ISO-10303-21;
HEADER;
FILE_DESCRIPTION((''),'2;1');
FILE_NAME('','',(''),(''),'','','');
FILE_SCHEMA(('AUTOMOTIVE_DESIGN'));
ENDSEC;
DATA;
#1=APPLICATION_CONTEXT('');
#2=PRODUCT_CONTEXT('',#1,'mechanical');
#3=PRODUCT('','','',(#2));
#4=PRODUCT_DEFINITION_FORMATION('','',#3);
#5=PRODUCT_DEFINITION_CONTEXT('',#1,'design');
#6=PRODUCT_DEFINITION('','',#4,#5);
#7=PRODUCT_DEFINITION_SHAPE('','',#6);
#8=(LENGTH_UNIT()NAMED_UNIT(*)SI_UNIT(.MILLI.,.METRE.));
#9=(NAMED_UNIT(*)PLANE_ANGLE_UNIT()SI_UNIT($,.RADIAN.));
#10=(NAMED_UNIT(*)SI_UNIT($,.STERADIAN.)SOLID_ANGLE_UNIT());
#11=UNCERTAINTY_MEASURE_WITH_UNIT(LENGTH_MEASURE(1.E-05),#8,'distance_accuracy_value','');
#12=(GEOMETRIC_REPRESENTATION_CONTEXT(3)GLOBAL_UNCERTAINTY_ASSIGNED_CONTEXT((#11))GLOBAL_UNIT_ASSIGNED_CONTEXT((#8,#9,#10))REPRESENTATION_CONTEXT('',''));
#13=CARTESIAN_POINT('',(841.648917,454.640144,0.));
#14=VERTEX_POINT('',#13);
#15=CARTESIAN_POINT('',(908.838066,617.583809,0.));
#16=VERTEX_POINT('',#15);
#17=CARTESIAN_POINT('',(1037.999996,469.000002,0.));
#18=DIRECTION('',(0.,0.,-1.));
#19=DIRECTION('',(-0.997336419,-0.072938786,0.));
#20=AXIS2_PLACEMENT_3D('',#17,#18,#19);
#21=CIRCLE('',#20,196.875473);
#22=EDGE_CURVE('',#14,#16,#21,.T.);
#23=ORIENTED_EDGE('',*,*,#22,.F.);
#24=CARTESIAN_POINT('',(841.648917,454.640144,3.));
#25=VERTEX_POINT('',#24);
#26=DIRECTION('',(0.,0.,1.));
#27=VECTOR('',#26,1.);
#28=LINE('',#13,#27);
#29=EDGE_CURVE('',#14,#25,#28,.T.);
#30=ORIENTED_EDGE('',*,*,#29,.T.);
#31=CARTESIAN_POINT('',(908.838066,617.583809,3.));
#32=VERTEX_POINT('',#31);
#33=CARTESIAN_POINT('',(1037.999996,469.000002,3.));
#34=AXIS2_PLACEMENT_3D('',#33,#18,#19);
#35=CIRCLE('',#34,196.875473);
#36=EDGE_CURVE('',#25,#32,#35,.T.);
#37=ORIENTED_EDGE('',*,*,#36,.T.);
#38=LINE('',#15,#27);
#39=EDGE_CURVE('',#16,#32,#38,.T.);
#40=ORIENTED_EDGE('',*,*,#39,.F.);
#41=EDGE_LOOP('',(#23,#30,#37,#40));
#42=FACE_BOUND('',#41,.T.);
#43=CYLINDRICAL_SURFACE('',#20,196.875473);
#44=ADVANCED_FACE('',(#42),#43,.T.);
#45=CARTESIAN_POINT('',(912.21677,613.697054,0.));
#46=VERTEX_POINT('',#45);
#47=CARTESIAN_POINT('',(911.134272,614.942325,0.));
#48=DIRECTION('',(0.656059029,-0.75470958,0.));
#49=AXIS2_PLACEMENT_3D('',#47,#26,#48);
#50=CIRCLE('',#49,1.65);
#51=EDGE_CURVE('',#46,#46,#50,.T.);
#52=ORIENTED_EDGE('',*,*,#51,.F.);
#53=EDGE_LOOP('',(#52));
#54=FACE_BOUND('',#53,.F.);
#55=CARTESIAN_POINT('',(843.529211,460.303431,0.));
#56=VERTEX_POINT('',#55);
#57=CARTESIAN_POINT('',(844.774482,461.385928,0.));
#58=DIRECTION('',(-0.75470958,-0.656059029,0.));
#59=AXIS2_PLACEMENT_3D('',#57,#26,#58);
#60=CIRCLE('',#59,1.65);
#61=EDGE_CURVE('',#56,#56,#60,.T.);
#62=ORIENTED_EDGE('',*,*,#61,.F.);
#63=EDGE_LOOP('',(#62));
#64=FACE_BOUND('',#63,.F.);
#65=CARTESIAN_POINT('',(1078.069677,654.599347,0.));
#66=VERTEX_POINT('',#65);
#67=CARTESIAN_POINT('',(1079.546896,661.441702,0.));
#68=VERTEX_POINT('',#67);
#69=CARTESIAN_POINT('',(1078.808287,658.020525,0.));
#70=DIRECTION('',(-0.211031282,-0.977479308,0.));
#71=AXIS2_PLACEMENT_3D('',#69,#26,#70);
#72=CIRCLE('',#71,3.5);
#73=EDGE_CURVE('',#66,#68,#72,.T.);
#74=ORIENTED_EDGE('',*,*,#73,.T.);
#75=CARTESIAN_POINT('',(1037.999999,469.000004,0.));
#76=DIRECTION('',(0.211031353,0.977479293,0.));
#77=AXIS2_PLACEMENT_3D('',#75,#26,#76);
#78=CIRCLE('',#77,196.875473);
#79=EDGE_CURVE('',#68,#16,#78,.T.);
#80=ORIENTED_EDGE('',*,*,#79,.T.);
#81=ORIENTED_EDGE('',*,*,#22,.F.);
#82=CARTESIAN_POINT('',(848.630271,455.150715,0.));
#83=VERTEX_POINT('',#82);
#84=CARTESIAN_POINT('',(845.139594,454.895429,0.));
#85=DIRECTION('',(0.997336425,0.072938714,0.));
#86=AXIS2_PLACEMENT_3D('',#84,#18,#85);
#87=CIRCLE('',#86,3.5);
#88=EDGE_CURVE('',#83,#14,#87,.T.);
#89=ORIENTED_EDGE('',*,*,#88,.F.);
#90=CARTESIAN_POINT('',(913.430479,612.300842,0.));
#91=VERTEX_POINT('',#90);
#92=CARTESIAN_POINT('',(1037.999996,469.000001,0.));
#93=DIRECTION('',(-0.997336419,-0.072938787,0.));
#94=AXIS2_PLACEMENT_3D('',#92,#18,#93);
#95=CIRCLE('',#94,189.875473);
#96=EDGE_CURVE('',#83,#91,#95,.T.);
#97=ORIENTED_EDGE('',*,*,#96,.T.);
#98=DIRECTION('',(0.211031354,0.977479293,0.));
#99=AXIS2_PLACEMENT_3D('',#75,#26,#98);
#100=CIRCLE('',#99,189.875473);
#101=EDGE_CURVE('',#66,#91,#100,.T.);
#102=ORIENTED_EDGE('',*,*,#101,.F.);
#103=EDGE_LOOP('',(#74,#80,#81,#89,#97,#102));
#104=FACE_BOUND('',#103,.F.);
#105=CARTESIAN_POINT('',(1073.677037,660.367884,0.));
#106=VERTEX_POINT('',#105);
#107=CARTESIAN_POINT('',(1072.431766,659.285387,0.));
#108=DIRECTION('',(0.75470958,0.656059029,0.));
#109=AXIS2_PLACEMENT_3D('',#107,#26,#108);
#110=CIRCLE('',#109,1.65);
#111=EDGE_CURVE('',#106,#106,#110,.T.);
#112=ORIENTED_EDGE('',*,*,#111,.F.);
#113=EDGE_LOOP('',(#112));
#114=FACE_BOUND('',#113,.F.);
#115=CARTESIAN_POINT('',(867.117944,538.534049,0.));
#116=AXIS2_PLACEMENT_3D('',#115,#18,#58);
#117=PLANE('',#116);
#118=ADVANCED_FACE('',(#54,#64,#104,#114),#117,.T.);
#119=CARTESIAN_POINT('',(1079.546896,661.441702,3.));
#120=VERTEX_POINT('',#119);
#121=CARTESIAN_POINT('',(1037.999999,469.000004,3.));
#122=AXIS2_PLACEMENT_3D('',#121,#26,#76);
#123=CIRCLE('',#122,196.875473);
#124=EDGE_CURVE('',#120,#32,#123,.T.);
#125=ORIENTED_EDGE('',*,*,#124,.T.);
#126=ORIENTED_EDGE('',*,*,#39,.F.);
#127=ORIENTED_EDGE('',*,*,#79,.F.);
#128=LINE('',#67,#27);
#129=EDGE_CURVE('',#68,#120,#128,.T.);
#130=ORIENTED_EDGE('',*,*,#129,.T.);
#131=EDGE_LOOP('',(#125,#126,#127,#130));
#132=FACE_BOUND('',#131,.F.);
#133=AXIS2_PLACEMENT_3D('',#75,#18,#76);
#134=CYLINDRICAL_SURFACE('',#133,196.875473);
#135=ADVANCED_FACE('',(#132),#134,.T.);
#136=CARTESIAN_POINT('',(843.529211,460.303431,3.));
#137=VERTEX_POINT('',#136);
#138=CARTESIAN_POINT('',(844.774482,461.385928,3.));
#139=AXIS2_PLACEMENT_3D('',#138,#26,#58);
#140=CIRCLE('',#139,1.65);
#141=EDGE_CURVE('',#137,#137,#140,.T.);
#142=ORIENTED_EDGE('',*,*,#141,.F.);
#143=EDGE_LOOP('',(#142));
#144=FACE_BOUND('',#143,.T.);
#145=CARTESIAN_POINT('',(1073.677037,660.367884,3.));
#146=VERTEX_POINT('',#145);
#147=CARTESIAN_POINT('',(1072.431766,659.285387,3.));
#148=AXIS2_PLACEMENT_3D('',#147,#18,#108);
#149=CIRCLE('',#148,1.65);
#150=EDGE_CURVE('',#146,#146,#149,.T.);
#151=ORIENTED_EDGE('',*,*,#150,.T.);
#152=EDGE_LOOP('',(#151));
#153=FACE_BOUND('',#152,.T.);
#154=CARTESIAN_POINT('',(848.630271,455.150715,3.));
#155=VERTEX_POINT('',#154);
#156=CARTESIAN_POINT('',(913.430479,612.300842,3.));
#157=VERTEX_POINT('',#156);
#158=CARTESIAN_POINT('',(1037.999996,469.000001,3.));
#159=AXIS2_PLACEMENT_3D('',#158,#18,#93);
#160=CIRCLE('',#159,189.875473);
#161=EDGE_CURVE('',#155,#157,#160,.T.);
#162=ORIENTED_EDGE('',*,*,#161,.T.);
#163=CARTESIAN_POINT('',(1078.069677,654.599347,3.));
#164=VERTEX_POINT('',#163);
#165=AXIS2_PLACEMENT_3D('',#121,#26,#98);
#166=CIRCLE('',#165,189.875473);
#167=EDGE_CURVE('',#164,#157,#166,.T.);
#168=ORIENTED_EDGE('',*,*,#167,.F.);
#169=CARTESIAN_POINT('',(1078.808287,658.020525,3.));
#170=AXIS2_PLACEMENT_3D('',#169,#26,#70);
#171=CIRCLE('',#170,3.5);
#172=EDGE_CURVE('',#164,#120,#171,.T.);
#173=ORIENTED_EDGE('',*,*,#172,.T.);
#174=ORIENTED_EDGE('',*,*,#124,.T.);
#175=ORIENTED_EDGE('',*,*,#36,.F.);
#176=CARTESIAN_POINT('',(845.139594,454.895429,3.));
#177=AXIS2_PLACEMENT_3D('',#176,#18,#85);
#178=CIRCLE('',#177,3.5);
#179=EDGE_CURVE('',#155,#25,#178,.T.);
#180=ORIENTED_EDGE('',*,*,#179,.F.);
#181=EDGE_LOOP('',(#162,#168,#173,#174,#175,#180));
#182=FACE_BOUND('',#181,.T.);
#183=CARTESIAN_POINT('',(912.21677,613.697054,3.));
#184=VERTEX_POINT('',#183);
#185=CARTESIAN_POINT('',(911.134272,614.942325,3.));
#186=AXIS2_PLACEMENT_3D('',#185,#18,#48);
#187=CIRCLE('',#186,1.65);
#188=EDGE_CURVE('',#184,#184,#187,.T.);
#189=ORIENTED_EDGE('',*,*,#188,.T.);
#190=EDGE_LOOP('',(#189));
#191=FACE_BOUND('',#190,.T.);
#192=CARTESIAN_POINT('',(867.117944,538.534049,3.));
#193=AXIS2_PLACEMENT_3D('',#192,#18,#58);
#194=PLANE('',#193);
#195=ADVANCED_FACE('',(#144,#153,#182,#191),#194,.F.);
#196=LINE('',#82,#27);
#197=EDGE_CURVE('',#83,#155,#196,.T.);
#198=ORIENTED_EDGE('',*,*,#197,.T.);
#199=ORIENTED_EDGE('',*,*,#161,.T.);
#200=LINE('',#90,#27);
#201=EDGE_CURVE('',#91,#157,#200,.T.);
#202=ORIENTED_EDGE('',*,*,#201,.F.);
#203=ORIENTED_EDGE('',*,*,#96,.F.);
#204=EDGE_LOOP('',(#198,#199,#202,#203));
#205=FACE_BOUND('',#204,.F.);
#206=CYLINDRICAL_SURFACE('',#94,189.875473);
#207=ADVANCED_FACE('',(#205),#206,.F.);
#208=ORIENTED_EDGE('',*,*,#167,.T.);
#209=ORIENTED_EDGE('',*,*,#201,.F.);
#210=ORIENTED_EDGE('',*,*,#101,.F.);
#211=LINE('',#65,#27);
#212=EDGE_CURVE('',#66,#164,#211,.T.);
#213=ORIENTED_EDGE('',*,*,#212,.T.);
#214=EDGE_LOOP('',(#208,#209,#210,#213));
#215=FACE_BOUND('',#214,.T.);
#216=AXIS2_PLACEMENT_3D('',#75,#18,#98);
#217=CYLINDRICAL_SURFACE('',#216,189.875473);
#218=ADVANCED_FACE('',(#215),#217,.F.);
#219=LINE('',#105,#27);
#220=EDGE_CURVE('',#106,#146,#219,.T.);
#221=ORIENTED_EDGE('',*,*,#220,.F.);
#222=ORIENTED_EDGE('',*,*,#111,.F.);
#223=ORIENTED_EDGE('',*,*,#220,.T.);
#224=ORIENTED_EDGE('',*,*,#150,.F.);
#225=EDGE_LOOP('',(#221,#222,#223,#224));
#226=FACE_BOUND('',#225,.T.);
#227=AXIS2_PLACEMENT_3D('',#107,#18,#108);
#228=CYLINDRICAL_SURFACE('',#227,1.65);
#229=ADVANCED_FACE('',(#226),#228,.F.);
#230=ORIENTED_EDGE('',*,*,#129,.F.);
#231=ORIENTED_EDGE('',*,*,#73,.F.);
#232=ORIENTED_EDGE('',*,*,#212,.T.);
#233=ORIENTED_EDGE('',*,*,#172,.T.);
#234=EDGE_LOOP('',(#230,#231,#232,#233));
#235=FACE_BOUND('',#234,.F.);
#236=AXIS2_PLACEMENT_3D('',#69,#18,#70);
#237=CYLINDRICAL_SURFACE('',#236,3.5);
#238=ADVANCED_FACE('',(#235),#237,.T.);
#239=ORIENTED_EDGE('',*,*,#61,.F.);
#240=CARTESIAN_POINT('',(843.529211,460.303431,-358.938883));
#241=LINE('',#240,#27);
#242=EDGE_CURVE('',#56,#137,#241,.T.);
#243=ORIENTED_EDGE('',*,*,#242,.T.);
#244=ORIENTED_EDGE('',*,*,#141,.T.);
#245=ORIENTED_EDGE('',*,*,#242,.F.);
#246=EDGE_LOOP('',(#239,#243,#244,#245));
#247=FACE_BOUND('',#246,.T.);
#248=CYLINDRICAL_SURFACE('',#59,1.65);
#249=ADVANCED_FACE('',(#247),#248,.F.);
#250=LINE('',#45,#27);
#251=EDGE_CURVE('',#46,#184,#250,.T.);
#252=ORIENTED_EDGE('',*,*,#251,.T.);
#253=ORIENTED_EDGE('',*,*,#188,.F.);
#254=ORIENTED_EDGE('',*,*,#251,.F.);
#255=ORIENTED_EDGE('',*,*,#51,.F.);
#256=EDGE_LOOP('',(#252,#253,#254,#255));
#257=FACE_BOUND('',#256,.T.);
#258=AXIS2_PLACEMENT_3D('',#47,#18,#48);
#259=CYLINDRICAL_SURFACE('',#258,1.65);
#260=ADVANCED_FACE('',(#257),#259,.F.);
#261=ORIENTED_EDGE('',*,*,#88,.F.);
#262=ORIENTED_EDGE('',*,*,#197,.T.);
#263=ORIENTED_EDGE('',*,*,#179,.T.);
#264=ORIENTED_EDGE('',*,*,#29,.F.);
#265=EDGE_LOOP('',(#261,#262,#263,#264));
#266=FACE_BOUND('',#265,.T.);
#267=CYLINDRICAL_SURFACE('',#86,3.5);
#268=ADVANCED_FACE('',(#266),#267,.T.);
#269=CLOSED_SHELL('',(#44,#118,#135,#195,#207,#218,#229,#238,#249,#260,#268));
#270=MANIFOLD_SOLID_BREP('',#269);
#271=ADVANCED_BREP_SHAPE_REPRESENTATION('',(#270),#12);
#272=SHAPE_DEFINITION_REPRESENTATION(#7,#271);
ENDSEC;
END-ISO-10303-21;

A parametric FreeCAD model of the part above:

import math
import FreeCAD as App
import Part
import Sketcher
Q = App.Units.Quantity

doc = App.newDocument("Part")
body = doc.addObject("PartDesign::Body", "Body")

sketch1 = body.newObject("Sketcher::SketchObject", "Sketch")
sketch1.AttachmentSupport = (doc.getObject("XY_Plane"), [""])
sketch1.MapMode = "FlatFace"
sketch1.addGeometry([
    Part.ArcOfCircle(Part.Circle(App.Vector(0.000002, 0.000004, 0), App.Vector(0, 0, 1), 189.875473), math.radians(36.817201), math.radians(90.000001)),
    Part.ArcOfCircle(Part.Circle(App.Vector(154.807027, 115.882956, 0), App.Vector(0, 0, 1), 3.5), math.radians(-143.182795), math.radians(36.817205)),
    Part.ArcOfCircle(Part.Circle(App.Vector(0.000002, 0.000004, 0), App.Vector(0, 0, 1), 196.875473), math.radians(36.817201), math.radians(90.000001)),
    Part.LineSegment(App.Vector(0, 196.875477, 0), App.Vector(0, 189.875477, 0)),
], False)
sketch1.addConstraint([
    Sketcher.Constraint("Tangent", 0, 1, 1, 1),
    Sketcher.Constraint("Tangent", 1, 2, 2, 1),
    Sketcher.Constraint("Coincident", 2, 2, 3, 1),
    Sketcher.Constraint("Coincident", 3, 2, 0, 2),
    Sketcher.Constraint("Vertical", 3),
    Sketcher.Constraint("Coincident", 0, 3, -1, 1),
    Sketcher.Constraint("Coincident", 2, 3, -1, 1),
    Sketcher.Constraint("PointOnObject", 2, 2, -2),
    Sketcher.Constraint("Radius", 1, Q("3.5 mm")),
    Sketcher.Constraint("Radius", 0, Q("189.875473 mm")),
    Sketcher.Constraint("DistanceY", -1, 1, 1, 2, Q("117.98038 mm")),
])
pad1 = body.newObject("PartDesign::Pad", "Pad")
pad1.Profile = sketch1
pad1.Length = 3

sketch2 = body.newObject("Sketcher::SketchObject", "Sketch001")
sketch2.AttachmentSupport = (doc.getObject("XY_Plane"), [""])
sketch2.MapMode = "FlatFace"
sketch2.addGeometry([
    Part.Circle(App.Vector(150.82443, 121.020933, 0), App.Vector(0, 0, 1), 1.65),
    Part.ArcOfCircle(Part.Circle(App.Vector(0, 193.375477, 0), App.Vector(0, 0, 1), 1.65), math.radians(-90), math.radians(90)),
    Part.LineSegment(App.Vector(0, 195.025477, 0), App.Vector(0, 191.725477, 0)),
], False)
sketch2.addConstraint([
    Sketcher.Constraint("Coincident", 1, 1, 2, 2),
    Sketcher.Constraint("Coincident", 2, 1, 1, 2),
    Sketcher.Constraint("Vertical", 2),
    Sketcher.Constraint("Equal", 0, 1),
    Sketcher.Constraint("PointOnObject", 1, 3, -2),
    Sketcher.Constraint("PointOnObject", 1, 1, -2),
    Sketcher.Constraint("Diameter", 0, Q("3.3 mm")),
    Sketcher.Constraint("DistanceX", -1, 1, 0, 3, Q("150.82443 mm")),
    Sketcher.Constraint("DistanceY", -1, 1, 0, 3, Q("121.020933 mm")),
    Sketcher.Constraint("DistanceY", -1, 1, 1, 3, Q("193.375477 mm")),
])
pocket1 = body.newObject("PartDesign::Pocket", "Pocket")
pocket1.Profile = sketch2
pocket1.Type = "ThroughAll"
pocket1.Midplane = True
doc.recompute()

mirrored = body.newObject("PartDesign::Mirrored", "Mirrored")
mirrored.Originals = [pad1, pocket1]
mirrored.MirrorPlane = (doc.getObject("YZ_Plane"), [""])
body.Tip = mirrored
body2 = doc.addObject("PartDesign::Body", "Body001")
doc.recompute()

body.Placement = App.Placement(App.Vector(0, 0, 0), App.Rotation(App.Vector(0, 0, 1), 60))
boolean = body2.newObject("PartDesign::Boolean", "Boolean")
boolean.Type = "Fuse"
boolean.addObjects([body])
body3 = doc.addObject("PartDesign::Body", "Body002")
doc.recompute()

body2.Placement = App.Placement(App.Vector(1038, 469, 0), App.Rotation(App.Vector(0, 0, -1), 19))
boolean2 = body3.newObject("PartDesign::Boolean", "Boolean001")
boolean2.Type = "Fuse"
boolean2.addObjects([body2])

doc.recompute()
